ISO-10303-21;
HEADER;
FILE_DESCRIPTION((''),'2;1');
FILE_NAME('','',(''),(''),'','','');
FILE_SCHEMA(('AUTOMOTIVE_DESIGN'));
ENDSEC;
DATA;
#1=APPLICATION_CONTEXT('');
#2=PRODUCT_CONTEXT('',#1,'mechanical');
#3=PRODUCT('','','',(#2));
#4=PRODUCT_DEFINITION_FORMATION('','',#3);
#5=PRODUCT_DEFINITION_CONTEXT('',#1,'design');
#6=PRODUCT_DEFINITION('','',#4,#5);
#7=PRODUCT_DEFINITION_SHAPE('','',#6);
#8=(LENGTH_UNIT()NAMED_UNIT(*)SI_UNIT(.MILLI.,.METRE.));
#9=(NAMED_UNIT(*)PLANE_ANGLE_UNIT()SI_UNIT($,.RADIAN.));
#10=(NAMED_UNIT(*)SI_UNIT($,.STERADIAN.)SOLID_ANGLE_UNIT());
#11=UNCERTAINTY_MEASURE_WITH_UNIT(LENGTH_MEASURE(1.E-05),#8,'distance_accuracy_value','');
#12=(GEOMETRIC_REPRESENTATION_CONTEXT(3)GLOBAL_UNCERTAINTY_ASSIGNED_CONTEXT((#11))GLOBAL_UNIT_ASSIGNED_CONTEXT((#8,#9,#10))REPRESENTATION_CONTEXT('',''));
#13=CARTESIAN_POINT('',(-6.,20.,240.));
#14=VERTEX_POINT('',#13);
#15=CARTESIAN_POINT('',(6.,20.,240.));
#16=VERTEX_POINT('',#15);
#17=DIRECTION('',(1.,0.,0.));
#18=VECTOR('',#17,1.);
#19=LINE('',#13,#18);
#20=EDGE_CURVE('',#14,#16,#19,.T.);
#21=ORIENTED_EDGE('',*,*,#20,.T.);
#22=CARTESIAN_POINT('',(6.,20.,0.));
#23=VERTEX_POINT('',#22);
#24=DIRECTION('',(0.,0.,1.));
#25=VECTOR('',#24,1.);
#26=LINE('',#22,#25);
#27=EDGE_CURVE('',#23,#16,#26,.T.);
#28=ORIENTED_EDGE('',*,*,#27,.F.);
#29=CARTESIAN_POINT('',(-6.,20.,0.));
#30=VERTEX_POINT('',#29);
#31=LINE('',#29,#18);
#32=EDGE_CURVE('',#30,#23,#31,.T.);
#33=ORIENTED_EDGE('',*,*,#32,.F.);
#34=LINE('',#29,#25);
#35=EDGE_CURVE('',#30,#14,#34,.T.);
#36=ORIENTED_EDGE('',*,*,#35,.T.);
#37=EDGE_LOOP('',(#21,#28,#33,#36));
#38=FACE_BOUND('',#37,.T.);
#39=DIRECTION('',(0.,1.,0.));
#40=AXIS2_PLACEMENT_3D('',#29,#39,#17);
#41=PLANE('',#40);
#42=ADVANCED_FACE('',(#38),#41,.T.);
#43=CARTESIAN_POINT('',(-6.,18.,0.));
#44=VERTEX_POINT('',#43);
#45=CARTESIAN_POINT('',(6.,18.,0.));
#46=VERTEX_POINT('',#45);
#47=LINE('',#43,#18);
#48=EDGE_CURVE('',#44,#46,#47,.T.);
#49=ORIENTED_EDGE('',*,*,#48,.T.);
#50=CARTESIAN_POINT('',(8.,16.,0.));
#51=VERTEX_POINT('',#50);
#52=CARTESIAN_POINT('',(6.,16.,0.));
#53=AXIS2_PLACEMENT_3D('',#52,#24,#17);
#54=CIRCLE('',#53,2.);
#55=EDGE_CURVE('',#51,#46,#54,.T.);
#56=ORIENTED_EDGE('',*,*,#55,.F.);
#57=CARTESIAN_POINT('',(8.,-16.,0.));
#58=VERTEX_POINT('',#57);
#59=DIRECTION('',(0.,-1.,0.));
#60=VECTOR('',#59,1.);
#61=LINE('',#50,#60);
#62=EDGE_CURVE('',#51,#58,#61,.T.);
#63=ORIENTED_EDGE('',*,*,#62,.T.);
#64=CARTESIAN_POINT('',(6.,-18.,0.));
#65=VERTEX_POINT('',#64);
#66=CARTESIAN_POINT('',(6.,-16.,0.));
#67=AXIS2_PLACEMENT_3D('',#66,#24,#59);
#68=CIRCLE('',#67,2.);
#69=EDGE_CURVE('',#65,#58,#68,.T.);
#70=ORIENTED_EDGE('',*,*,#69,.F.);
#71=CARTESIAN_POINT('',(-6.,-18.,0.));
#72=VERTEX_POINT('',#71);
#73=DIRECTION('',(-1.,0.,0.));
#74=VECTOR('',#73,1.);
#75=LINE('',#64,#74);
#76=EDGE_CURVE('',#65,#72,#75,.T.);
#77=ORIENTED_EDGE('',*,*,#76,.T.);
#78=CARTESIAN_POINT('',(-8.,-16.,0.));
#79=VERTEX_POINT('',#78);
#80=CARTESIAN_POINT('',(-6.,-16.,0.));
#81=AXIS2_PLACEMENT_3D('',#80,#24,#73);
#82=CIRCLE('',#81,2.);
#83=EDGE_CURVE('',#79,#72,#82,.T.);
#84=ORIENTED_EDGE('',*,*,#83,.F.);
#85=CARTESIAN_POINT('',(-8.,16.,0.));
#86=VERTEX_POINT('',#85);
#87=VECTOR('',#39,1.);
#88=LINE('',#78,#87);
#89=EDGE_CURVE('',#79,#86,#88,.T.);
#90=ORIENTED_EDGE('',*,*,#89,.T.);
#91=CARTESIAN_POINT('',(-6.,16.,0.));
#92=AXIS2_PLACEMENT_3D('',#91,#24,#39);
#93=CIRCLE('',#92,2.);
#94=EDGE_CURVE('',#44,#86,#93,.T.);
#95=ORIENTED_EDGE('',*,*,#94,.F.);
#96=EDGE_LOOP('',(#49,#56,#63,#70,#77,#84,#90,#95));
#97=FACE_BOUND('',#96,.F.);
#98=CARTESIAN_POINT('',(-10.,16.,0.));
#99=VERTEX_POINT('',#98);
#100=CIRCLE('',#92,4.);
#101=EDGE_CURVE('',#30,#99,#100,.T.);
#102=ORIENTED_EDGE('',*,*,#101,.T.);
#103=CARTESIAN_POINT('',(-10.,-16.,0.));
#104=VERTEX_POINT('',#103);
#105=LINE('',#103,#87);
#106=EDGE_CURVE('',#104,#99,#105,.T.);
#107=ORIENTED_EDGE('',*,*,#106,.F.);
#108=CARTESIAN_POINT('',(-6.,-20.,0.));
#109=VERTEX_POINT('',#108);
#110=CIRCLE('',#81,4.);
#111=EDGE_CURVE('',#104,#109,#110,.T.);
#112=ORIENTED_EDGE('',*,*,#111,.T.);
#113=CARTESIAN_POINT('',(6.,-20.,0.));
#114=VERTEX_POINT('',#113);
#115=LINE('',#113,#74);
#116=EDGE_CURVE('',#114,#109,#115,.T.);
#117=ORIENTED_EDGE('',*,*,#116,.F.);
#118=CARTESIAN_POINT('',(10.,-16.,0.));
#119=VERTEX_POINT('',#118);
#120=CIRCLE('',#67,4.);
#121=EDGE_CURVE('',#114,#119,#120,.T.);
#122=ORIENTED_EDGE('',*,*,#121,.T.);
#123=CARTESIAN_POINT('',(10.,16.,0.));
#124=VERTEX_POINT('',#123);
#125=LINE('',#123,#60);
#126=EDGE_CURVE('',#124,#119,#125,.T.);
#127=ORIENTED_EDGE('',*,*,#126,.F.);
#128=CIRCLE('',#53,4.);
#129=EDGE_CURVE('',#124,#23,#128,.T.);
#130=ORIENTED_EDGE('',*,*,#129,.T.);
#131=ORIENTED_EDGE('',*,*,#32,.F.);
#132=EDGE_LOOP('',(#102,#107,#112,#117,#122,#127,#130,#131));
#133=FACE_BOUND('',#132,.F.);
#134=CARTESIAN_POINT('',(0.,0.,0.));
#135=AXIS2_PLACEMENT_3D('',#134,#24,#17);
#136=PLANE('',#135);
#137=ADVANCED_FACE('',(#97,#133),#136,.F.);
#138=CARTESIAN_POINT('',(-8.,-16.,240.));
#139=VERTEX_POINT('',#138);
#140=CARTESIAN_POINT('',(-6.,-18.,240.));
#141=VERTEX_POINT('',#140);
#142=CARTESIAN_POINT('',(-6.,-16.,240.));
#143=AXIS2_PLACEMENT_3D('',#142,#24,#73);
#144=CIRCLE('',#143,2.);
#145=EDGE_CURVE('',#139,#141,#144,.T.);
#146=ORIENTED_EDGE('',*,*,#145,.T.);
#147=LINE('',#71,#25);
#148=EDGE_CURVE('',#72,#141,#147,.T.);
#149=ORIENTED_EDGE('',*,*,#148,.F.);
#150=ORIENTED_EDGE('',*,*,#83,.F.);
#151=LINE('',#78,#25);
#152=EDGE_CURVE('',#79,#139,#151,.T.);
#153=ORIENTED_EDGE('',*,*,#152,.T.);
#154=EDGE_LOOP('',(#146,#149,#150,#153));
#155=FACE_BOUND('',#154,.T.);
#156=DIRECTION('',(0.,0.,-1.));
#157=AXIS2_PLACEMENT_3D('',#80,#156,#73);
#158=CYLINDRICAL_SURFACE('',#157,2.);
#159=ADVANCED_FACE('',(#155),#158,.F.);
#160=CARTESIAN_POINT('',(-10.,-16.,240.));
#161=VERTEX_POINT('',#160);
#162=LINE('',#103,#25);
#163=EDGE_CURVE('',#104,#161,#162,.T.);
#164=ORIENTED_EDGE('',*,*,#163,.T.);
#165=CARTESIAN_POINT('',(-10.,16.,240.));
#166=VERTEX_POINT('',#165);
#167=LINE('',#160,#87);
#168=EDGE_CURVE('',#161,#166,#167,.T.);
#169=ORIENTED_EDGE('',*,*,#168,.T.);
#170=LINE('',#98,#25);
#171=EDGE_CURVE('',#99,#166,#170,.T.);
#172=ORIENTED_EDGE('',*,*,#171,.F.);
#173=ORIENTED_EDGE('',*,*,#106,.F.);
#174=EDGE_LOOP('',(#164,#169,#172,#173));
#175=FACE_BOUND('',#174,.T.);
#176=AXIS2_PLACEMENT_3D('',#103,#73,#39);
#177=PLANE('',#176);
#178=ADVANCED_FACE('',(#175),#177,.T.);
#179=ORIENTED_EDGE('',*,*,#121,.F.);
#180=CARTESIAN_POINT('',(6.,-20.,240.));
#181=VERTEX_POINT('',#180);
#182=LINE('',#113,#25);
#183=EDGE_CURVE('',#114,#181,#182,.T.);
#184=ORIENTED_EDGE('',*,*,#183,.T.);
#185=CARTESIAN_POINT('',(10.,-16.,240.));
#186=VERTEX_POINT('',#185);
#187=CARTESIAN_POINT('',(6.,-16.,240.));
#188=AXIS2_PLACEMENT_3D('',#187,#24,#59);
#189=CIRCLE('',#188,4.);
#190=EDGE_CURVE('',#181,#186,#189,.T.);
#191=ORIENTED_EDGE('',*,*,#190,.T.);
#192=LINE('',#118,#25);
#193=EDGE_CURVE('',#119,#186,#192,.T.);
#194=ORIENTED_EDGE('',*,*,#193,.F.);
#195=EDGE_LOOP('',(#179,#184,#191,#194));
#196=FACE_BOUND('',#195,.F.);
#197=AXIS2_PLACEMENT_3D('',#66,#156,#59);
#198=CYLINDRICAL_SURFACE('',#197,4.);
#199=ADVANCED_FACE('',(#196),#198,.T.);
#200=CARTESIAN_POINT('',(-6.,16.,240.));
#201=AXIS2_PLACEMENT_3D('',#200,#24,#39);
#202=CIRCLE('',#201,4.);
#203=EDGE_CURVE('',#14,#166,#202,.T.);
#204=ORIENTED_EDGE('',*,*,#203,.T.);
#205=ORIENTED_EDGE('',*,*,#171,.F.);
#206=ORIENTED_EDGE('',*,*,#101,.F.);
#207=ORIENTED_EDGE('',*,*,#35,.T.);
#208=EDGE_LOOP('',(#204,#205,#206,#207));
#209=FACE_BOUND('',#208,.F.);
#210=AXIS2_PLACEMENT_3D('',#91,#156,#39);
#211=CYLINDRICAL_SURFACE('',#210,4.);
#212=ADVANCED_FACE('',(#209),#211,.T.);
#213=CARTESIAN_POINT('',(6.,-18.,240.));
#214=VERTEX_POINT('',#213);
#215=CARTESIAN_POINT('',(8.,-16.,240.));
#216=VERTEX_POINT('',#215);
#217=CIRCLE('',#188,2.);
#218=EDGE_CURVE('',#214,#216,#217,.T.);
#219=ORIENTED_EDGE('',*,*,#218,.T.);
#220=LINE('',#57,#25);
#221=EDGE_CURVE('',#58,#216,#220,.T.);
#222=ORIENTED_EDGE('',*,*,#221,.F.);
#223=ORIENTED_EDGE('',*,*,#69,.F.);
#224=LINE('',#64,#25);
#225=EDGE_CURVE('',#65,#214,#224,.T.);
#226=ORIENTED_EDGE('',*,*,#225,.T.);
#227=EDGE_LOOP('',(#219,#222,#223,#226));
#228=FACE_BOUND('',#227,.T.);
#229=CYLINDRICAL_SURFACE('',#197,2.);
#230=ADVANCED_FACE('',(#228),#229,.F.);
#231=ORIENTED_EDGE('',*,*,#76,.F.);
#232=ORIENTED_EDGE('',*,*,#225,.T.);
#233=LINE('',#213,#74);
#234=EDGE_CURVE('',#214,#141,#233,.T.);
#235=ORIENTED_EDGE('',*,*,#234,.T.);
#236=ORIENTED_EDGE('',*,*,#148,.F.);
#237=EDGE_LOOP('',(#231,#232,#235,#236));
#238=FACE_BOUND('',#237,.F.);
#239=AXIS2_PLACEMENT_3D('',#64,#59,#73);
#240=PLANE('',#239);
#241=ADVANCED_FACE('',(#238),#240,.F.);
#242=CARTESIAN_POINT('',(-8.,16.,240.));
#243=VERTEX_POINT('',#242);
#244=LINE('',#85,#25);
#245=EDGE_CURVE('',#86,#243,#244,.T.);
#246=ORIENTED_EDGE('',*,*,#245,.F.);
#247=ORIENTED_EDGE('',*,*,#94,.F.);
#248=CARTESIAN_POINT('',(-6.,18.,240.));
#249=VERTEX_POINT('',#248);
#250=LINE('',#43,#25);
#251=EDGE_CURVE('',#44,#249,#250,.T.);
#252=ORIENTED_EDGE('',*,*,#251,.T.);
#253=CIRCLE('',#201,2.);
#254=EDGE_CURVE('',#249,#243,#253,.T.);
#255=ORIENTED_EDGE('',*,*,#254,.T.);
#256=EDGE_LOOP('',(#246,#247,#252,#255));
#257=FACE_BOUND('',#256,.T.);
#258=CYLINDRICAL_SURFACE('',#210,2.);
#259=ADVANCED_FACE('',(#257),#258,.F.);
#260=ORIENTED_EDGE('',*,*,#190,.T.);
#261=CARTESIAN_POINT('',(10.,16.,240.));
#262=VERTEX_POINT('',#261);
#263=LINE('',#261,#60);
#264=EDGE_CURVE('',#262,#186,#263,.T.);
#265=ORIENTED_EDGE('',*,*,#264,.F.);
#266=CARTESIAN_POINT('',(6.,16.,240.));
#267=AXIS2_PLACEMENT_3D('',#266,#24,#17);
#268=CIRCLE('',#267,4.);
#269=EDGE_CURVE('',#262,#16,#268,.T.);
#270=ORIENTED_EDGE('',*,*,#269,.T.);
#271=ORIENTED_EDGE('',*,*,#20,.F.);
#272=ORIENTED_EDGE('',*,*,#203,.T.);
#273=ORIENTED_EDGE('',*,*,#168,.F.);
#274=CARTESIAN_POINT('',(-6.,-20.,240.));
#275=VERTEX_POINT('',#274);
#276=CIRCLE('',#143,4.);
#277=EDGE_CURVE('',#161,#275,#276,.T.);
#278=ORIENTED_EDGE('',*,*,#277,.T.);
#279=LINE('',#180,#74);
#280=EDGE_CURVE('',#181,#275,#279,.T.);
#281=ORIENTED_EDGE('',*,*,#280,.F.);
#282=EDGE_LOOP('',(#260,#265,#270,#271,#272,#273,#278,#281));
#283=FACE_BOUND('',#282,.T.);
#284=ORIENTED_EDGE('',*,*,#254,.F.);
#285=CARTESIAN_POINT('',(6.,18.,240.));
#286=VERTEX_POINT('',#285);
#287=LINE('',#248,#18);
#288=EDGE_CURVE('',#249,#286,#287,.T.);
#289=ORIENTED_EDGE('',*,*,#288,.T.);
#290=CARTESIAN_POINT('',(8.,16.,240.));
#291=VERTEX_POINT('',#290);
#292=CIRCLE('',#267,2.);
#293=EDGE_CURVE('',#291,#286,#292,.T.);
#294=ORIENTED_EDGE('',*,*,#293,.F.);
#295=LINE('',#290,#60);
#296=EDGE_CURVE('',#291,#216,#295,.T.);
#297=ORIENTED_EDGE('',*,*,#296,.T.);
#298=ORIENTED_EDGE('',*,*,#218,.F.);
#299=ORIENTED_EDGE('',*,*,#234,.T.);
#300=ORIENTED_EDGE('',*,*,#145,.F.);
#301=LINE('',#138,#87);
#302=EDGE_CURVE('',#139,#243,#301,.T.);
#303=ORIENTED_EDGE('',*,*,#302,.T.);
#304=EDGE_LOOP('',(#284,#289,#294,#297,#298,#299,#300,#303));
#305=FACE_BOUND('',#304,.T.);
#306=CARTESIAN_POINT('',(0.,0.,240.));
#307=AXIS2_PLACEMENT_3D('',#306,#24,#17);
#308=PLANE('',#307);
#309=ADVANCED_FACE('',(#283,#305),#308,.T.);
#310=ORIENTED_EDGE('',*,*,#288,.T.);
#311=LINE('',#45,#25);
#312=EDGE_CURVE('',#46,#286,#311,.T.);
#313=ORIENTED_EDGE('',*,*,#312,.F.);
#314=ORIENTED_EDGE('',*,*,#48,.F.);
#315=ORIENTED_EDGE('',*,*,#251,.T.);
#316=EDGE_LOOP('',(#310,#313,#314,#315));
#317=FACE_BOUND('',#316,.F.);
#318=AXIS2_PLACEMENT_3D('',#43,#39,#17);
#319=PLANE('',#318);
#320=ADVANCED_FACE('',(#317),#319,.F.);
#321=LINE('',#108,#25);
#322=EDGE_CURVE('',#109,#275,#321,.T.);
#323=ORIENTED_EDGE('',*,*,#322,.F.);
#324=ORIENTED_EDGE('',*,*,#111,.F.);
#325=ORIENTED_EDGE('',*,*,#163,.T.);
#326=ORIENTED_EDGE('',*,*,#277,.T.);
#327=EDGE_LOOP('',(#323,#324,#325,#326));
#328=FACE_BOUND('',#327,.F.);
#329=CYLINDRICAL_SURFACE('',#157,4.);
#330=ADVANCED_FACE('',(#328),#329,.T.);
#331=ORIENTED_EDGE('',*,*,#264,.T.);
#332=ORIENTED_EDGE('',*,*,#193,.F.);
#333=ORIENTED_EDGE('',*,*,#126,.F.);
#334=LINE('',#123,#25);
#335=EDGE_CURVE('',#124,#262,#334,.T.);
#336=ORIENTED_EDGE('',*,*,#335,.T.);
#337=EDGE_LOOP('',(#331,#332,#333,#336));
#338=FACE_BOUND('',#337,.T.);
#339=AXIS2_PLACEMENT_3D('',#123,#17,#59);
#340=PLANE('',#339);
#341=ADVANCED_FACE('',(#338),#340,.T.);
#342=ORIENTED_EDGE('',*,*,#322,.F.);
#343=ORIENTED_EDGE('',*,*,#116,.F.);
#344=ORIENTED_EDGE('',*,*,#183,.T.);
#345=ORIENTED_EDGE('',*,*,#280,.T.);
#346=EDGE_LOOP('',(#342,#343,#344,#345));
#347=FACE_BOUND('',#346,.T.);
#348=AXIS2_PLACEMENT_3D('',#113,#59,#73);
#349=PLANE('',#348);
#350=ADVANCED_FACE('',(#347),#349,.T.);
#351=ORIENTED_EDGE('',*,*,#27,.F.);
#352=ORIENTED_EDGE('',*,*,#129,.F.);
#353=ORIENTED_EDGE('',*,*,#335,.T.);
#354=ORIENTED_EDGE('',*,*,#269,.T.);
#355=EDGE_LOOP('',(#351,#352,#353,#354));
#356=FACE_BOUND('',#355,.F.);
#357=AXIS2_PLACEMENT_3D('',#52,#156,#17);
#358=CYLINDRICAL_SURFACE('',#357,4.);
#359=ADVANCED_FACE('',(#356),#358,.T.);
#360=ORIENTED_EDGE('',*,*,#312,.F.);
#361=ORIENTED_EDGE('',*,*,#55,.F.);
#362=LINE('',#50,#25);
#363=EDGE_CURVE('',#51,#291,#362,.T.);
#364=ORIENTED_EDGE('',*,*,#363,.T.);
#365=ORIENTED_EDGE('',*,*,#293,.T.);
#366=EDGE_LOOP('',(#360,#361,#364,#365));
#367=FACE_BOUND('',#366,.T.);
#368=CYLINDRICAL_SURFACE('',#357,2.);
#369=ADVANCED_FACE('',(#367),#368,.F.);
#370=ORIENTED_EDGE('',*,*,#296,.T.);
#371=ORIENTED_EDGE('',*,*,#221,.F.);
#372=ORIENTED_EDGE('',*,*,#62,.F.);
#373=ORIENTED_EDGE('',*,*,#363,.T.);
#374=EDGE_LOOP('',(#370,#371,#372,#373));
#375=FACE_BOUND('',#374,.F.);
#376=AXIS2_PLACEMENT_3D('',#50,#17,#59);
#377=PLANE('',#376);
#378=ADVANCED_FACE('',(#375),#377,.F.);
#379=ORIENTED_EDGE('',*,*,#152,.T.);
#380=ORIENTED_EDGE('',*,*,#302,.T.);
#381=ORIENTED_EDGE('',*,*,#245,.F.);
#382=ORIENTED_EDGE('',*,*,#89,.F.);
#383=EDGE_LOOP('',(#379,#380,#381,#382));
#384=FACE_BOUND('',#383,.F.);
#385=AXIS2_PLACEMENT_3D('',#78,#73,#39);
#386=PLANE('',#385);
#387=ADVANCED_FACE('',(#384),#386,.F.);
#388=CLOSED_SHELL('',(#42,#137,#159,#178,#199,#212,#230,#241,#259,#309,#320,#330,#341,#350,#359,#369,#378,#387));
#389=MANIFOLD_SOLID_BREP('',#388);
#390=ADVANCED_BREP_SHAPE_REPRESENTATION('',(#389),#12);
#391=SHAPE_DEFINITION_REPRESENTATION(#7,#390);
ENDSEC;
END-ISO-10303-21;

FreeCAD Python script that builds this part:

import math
import FreeCAD as App
import Part
import Sketcher

V = App.Vector
Q = App.Units.Quantity

doc = App.newDocument("Part")
body = doc.addObject("PartDesign::Body", "Body")

# Sketch on XY plane
sketch1 = body.newObject("Sketcher::SketchObject", "Sketch")
sketch1.AttachmentSupport = (doc.getObject("XY_Plane"), [""])
sketch1.MapMode = "FlatFace"
sketch1.addGeometry(Part.LineSegment(V(-10, 16, 0), V(-10, -16, 0)), False)
sketch1.addGeometry(Part.ArcOfCircle(Part.Circle(V(-6, -16, 0), V(0, 0, 1), 4), math.radians(180), math.radians(270)), False)
sketch1.addGeometry(Part.LineSegment(V(-6, -20, 0), V(6, -20, 0)), False)
sketch1.addGeometry(Part.ArcOfCircle(Part.Circle(V(6, -16, 0), V(0, 0, 1), 4), math.radians(-90), math.radians(0)), False)
sketch1.addGeometry(Part.LineSegment(V(10, -16, 0), V(10, 16, 0)), False)
sketch1.addGeometry(Part.ArcOfCircle(Part.Circle(V(6, 16, 0), V(0, 0, 1), 4), math.radians(0), math.radians(90)), False)
sketch1.addGeometry(Part.LineSegment(V(6, 20, 0), V(-6, 20, 0)), False)
sketch1.addGeometry(Part.ArcOfCircle(Part.Circle(V(-6, 16, 0), V(0, 0, 1), 4), math.radians(90), math.radians(180)), False)
sketch1.addGeometry(Part.ArcOfCircle(Part.Circle(V(-6, 16, 0), V(0, 0, 1), 2), math.radians(90), math.radians(180)), False)
sketch1.addGeometry(Part.LineSegment(V(-6, 18, 0), V(6, 18, 0)), False)
sketch1.addGeometry(Part.ArcOfCircle(Part.Circle(V(6, 16, 0), V(0, 0, 1), 2), math.radians(0), math.radians(90)), False)
sketch1.addGeometry(Part.LineSegment(V(8, 16, 0), V(8, -16, 0)), False)
sketch1.addGeometry(Part.ArcOfCircle(Part.Circle(V(6, -16, 0), V(0, 0, 1), 2), math.radians(-90), math.radians(0)), False)
sketch1.addGeometry(Part.LineSegment(V(6, -18, 0), V(-6, -18, 0)), False)
sketch1.addGeometry(Part.ArcOfCircle(Part.Circle(V(-6, -16, 0), V(0, 0, 1), 2), math.radians(180), math.radians(270)), False)
sketch1.addGeometry(Part.LineSegment(V(-8, -16, 0), V(-8, 16, 0)), False)
sketch1.addConstraint(Sketcher.Constraint("Tangent", 0, 2, 1, 1))
sketch1.addConstraint(Sketcher.Constraint("Tangent", 1, 2, 2, 1))
sketch1.addConstraint(Sketcher.Constraint("Tangent", 2, 2, 3, 1))
sketch1.addConstraint(Sketcher.Constraint("Tangent", 3, 2, 4, 1))
sketch1.addConstraint(Sketcher.Constraint("Tangent", 4, 2, 5, 1))
sketch1.addConstraint(Sketcher.Constraint("Tangent", 5, 2, 6, 1))
sketch1.addConstraint(Sketcher.Constraint("Tangent", 6, 2, 7, 1))
sketch1.addConstraint(Sketcher.Constraint("Tangent", 7, 2, 0, 1))
sketch1.addConstraint(Sketcher.Constraint("Tangent", 8, 1, 9, 1))
sketch1.addConstraint(Sketcher.Constraint("Tangent", 9, 2, 10, 2))
sketch1.addConstraint(Sketcher.Constraint("Tangent", 10, 1, 11, 1))
sketch1.addConstraint(Sketcher.Constraint("Tangent", 11, 2, 12, 2))
sketch1.addConstraint(Sketcher.Constraint("Tangent", 12, 1, 13, 1))
sketch1.addConstraint(Sketcher.Constraint("Tangent", 13, 2, 14, 2))
sketch1.addConstraint(Sketcher.Constraint("Tangent", 14, 1, 15, 1))
sketch1.addConstraint(Sketcher.Constraint("Tangent", 15, 2, 8, 2))
sketch1.addConstraint(Sketcher.Constraint("Vertical", 0))
sketch1.addConstraint(Sketcher.Constraint("Horizontal", 2))
sketch1.addConstraint(Sketcher.Constraint("Vertical", 4))
sketch1.addConstraint(Sketcher.Constraint("Horizontal", 6))
sketch1.addConstraint(Sketcher.Constraint("Horizontal", 9))
sketch1.addConstraint(Sketcher.Constraint("Vertical", 11))
sketch1.addConstraint(Sketcher.Constraint("Horizontal", 13))
sketch1.addConstraint(Sketcher.Constraint("Vertical", 15))
sketch1.addConstraint(Sketcher.Constraint("Coincident", 8, 3, 7, 3))
sketch1.addConstraint(Sketcher.Constraint("Coincident", 10, 3, 5, 3))
sketch1.addConstraint(Sketcher.Constraint("Coincident", 12, 3, 3, 3))
sketch1.addConstraint(Sketcher.Constraint("Equal", 1, 3))
sketch1.addConstraint(Sketcher.Constraint("Equal", 3, 5))
sketch1.addConstraint(Sketcher.Constraint("Equal", 5, 7))
sketch1.addConstraint(Sketcher.Constraint("Equal", 12, 14))
sketch1.addConstraint(Sketcher.Constraint("Symmetric", 1, 3, 5, 3, -1, 1))
sketch1.addConstraint(Sketcher.Constraint("Radius", 1, Q("4 mm")))
sketch1.addConstraint(Sketcher.Constraint("Radius", 8, Q("2 mm")))
sketch1.addConstraint(Sketcher.Constraint("DistanceX", 0, 2, -1, 1, Q("10 mm")))
sketch1.addConstraint(Sketcher.Constraint("DistanceY", 1, 2, -1, 1, Q("20 mm")))
pad1 = body.newObject("PartDesign::Pad", "Pad")
pad1.Profile = sketch1
pad1.Length = 240

doc.recompute()
